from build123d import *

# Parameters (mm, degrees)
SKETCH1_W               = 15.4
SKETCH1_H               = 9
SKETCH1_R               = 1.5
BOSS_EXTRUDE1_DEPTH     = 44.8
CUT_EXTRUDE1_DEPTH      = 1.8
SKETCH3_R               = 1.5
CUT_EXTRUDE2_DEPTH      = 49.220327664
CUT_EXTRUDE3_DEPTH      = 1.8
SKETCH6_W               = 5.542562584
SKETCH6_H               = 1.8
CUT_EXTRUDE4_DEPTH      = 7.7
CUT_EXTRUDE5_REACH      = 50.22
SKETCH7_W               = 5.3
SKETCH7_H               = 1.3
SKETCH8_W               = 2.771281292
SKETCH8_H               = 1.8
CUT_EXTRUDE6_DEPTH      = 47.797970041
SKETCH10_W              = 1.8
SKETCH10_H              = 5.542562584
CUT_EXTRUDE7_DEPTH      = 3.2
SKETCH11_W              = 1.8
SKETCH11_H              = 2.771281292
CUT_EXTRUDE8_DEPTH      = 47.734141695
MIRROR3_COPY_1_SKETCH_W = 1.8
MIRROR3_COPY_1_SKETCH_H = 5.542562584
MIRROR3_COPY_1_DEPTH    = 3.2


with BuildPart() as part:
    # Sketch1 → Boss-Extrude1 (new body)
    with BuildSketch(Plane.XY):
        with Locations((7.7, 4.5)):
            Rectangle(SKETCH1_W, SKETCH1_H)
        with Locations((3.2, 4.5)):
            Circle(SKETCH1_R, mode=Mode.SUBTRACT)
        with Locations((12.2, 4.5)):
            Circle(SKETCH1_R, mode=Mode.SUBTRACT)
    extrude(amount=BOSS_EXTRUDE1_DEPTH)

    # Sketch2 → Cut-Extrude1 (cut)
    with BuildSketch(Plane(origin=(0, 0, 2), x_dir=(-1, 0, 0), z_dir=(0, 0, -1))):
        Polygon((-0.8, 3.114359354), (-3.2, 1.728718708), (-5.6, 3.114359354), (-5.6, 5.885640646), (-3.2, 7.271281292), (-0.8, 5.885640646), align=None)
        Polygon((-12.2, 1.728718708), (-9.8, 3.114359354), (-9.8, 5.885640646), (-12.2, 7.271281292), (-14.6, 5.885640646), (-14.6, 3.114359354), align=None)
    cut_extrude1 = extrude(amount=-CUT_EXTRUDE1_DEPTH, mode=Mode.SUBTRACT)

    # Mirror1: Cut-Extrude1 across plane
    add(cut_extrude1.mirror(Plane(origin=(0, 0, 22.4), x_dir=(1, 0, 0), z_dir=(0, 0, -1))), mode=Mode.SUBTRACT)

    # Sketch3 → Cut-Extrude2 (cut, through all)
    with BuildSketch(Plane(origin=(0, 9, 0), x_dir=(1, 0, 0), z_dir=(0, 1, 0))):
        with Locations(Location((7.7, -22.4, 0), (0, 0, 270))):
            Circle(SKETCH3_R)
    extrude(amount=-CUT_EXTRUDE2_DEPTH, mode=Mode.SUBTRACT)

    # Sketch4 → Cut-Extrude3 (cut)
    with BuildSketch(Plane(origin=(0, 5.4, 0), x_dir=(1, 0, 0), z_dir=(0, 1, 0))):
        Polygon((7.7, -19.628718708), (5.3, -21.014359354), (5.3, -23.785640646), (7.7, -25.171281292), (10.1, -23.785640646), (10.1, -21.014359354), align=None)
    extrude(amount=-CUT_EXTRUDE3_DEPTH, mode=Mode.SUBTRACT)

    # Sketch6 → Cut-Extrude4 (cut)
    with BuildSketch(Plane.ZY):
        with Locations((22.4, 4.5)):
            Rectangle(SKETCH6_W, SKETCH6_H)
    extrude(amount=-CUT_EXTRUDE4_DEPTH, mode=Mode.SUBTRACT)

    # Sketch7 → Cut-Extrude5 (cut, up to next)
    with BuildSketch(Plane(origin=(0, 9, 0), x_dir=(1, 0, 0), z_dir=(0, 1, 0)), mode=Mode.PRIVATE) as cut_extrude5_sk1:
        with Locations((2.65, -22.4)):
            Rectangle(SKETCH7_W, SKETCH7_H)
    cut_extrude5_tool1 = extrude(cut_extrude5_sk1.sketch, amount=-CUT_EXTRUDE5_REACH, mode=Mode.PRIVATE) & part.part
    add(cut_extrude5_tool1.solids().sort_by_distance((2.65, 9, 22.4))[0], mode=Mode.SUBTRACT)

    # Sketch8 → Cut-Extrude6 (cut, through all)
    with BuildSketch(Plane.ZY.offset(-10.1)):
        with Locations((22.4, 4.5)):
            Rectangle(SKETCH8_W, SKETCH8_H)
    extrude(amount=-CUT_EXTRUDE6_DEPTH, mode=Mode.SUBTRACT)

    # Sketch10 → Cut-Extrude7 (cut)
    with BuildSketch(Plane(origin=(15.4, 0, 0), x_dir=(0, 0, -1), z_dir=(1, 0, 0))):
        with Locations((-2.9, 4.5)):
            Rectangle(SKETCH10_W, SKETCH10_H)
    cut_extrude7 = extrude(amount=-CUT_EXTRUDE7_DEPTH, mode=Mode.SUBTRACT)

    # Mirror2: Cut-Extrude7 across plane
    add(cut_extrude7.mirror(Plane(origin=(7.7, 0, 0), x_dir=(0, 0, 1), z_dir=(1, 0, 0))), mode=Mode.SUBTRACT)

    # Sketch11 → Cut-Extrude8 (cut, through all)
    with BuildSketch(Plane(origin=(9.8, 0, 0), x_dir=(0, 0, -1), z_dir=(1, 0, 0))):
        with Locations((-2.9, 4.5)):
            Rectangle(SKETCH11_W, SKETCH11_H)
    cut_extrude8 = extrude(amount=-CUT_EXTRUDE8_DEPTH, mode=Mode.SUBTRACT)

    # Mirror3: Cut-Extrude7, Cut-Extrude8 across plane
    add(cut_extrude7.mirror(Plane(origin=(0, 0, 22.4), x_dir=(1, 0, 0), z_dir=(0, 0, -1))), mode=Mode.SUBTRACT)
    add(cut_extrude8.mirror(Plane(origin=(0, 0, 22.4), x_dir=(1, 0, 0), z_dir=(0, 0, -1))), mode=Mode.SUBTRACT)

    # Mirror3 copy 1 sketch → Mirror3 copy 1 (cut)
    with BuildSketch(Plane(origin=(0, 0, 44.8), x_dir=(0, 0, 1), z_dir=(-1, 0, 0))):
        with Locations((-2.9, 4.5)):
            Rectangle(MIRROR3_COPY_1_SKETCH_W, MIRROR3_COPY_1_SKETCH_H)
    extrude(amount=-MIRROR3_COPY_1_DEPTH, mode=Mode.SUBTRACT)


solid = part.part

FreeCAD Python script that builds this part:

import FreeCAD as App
import Part
import Sketcher
Q = App.Units.Quantity

doc = App.newDocument("Part")
body = doc.addObject("PartDesign::Body", "Body")

# Sketch on XY plane
sketch1 = doc.addObject("Sketcher::SketchObject", "Sketch")
body.addObject(sketch1)
sketch1.AttachmentSupport = (doc.XY_Plane, [""])
sketch1.MapMode = "FlatFace"
sketch1.addGeometry([
    Part.LineSegment(App.Vector(0, 9, 0), App.Vector(0, 0, 0)),  # 0
    Part.LineSegment(App.Vector(0, 0, 0), App.Vector(15.4, 0, 0)),  # 1
    Part.LineSegment(App.Vector(15.4, 0, 0), App.Vector(15.4, 9, 0)),  # 2
    Part.LineSegment(App.Vector(15.4, 9, 0), App.Vector(0, 9, 0)),  # 3
    Part.Circle(App.Vector(3.2, 4.5, 0), App.Vector(0, 0, 1), 1.5),  # 4
    Part.Circle(App.Vector(12.2, 4.5, 0), App.Vector(0, 0, 1), 1.5),  # 5
], False)
sketch1.addConstraint([
    Sketcher.Constraint("Coincident", 0, 2, 1, 1),
    Sketcher.Constraint("Coincident", 1, 2, 2, 1),
    Sketcher.Constraint("Coincident", 2, 2, 3, 1),
    Sketcher.Constraint("Coincident", 3, 2, 0, 1),
    Sketcher.Constraint("Vertical", 0),
    Sketcher.Constraint("Horizontal", 1),
    Sketcher.Constraint("Vertical", 2),
    Sketcher.Constraint("Horizontal", 3),
    Sketcher.Constraint("Coincident", 0, 2, -1, 1),
    Sketcher.Constraint("Equal", 4, 5),
    Sketcher.Constraint("Horizontal", 4, 3, 5, 3),
    Sketcher.Constraint("Diameter", 4, Q("3 mm")),
    Sketcher.Constraint("DistanceY", 0, 2, 0, 1, Q("9 mm")),
    Sketcher.Constraint("DistanceX", 1, 1, 1, 2, Q("15.4 mm")),
    Sketcher.Constraint("DistanceX", 4, 3, 5, 3, Q("9 mm")),
    Sketcher.Constraint("DistanceX", -1, 1, 4, 3, Q("3.2 mm")),
    Sketcher.Constraint("DistanceY", -1, 1, 4, 3, Q("4.5 mm")),
])
pad1 = doc.addObject("PartDesign::Pad", "Pad")
body.addObject(pad1)
pad1.Profile = sketch1
pad1.Length = 44.8

# Sketch on XY plane
sketch2 = doc.addObject("Sketcher::SketchObject", "Sketch001")
body.addObject(sketch2)
sketch2.AttachmentSupport = (doc.XY_Plane, [""])
sketch2.MapMode = "FlatFace"
sketch2.AttachmentOffset = App.Placement(App.Vector(0, 0, 2), App.Rotation())
sketch2.addGeometry([
    Part.LineSegment(App.Vector(3.2, 1.7, 0), App.Vector(0.8, 3.1, 0)),  # 0
    Part.LineSegment(App.Vector(0.8, 3.1, 0), App.Vector(0.8, 5.9, 0)),  # 1
    Part.LineSegment(App.Vector(0.8, 5.9, 0), App.Vector(3.2, 7.3, 0)),  # 2
    Part.LineSegment(App.Vector(3.2, 7.3, 0), App.Vector(5.6, 5.9, 0)),  # 3
    Part.LineSegment(App.Vector(5.6, 5.9, 0), App.Vector(5.6, 3.1, 0)),  # 4
    Part.LineSegment(App.Vector(5.6, 3.1, 0), App.Vector(3.2, 1.7, 0)),  # 5
    Part.LineSegment(App.Vector(12.2, 1.7, 0), App.Vector(9.8, 3.1, 0)),  # 6
    Part.LineSegment(App.Vector(9.8, 3.1, 0), App.Vector(9.8, 5.9, 0)),  # 7
    Part.LineSegment(App.Vector(9.8, 5.9, 0), App.Vector(12.2, 7.3, 0)),  # 8
    Part.LineSegment(App.Vector(12.2, 7.3, 0), App.Vector(14.6, 5.9, 0)),  # 9
    Part.LineSegment(App.Vector(14.6, 5.9, 0), App.Vector(14.6, 3.1, 0)),  # 10
    Part.LineSegment(App.Vector(14.6, 3.1, 0), App.Vector(12.2, 1.7, 0)),  # 11
], False)
sketch2.addConstraint([
    Sketcher.Constraint("Coincident", 0, 2, 1, 1),
    Sketcher.Constraint("Coincident", 1, 2, 2, 1),
    Sketcher.Constraint("Coincident", 2, 2, 3, 1),
    Sketcher.Constraint("Coincident", 3, 2, 4, 1),
    Sketcher.Constraint("Coincident", 4, 2, 5, 1),
    Sketcher.Constraint("Coincident", 5, 2, 0, 1),
    Sketcher.Constraint("Coincident", 6, 2, 7, 1),
    Sketcher.Constraint("Coincident", 7, 2, 8, 1),
    Sketcher.Constraint("Coincident", 8, 2, 9, 1),
    Sketcher.Constraint("Coincident", 9, 2, 10, 1),
    Sketcher.Constraint("Coincident", 10, 2, 11, 1),
    Sketcher.Constraint("Coincident", 11, 2, 6, 1),
    Sketcher.Constraint("Vertical", 1),
    Sketcher.Constraint("Vertical", 4),
    Sketcher.Constraint("Vertical", 7),
    Sketcher.Constraint("Vertical", 10),
    Sketcher.Constraint("Parallel", 0, 3),
    Sketcher.Constraint("Parallel", 2, 5),
    Sketcher.Constraint("Parallel", 3, 6),
    Sketcher.Constraint("Parallel", 5, 8),
    Sketcher.Constraint("Parallel", 6, 9),
    Sketcher.Constraint("Parallel", 8, 11),
    Sketcher.Constraint("Horizontal", 1, 2, 3, 2),
    Sketcher.Constraint("Horizontal", 0, 2, 4, 2),
    Sketcher.Constraint("Horizontal", 4, 2, 6, 2),
    Sketcher.Constraint("Horizontal", 3, 2, 7, 2),
    Sketcher.Constraint("Horizontal", 2, 2, 8, 2),
    Sketcher.Constraint("Horizontal", 7, 2, 9, 2),
    Sketcher.Constraint("Horizontal", 6, 2, 10, 2),
    Sketcher.Constraint("Vertical", 2, 2, 5, 2),
    Sketcher.Constraint("Angle", 0, Q("150 deg")),
    Sketcher.Constraint("DistanceX", 0, 2, 6, 2, Q("9 mm")),
    Sketcher.Constraint("DistanceX", -1, 1, 0, 2, Q("0.8 mm")),
    Sketcher.Constraint("DistanceX", -1, 1, 2, 2, Q("3.2 mm")),
    Sketcher.Constraint("DistanceY", 1, 1, 1, 2, Q("2.771281 mm")),
    Sketcher.Constraint("DistanceY", -1, 1, 0, 2, Q("3.114359 mm")),
])
pocket1 = doc.addObject("PartDesign::Pocket", "Pocket")
body.addObject(pocket1)
pocket1.Profile = sketch2
pocket1.Length = 1.8
pocket1.Reversed = True
doc.recompute()

datumplane = doc.addObject("PartDesign::Plane", "DatumPlane")
body.addObject(datumplane)
datumplane.AttachmentSupport = (doc.XY_Plane, [""])
datumplane.MapMode = "FlatFace"
datumplane.AttachmentOffset = App.Placement(App.Vector(0, 0, 22.4), App.Rotation())
mirrored = doc.addObject("PartDesign::Mirrored", "Mirrored")
body.addObject(mirrored)
mirrored.Originals = [pocket1]
mirrored.MirrorPlane = (datumplane, [""])
body.Tip = mirrored

# Sketch on XZ plane
sketch3 = doc.addObject("Sketcher::SketchObject", "Sketch002")
body.addObject(sketch3)
sketch3.AttachmentSupport = (doc.XZ_Plane, [""])
sketch3.MapMode = "FlatFace"
sketch3.AttachmentOffset = App.Placement(App.Vector(0, 0, -9), App.Rotation())
sketch3.addGeometry(Part.Circle(App.Vector(7.7, 22.4, 0), App.Vector(0, 0, 1), 1.5), False)
sketch3.addConstraint([
    Sketcher.Constraint("Diameter", 0, Q("3 mm")),
    Sketcher.Constraint("DistanceX", -1, 1, 0, 3, Q("7.7 mm")),
    Sketcher.Constraint("DistanceY", -1, 1, 0, 3, Q("22.4 mm")),
])
pocket2 = doc.addObject("PartDesign::Pocket", "Pocket001")
body.addObject(pocket2)
pocket2.Profile = sketch3
pocket2.Type = "ThroughAll"
pocket2.Reversed = True

# Sketch on XZ plane
sketch4 = doc.addObject("Sketcher::SketchObject", "Sketch003")
body.addObject(sketch4)
sketch4.AttachmentSupport = (doc.XZ_Plane, [""])
sketch4.MapMode = "FlatFace"
sketch4.AttachmentOffset = App.Placement(App.Vector(0, 0, -5.4), App.Rotation())
sketch4.addGeometry([
    Part.LineSegment(App.Vector(7.7, 19.6, 0), App.Vector(5.3, 21, 0)),  # 0
    Part.LineSegment(App.Vector(5.3, 21, 0), App.Vector(5.3, 23.8, 0)),  # 1
    Part.LineSegment(App.Vector(5.3, 23.8, 0), App.Vector(7.7, 25.2, 0)),  # 2
    Part.LineSegment(App.Vector(7.7, 25.2, 0), App.Vector(10.1, 23.8, 0)),  # 3
    Part.LineSegment(App.Vector(10.1, 23.8, 0), App.Vector(10.1, 21, 0)),  # 4
    Part.LineSegment(App.Vector(10.1, 21, 0), App.Vector(7.7, 19.6, 0)),  # 5
], False)
sketch4.addConstraint([
    Sketcher.Constraint("Coincident", 0, 2, 1, 1),
    Sketcher.Constraint("Coincident", 1, 2, 2, 1),
    Sketcher.Constraint("Coincident", 2, 2, 3, 1),
    Sketcher.Constraint("Coincident", 3, 2, 4, 1),
    Sketcher.Constraint("Coincident", 4, 2, 5, 1),
    Sketcher.Constraint("Coincident", 5, 2, 0, 1),
    Sketcher.Constraint("Vertical", 1),
    Sketcher.Constraint("Vertical", 4),
    Sketcher.Constraint("Parallel", 0, 3),
    Sketcher.Constraint("Parallel", 2, 5),
    Sketcher.Constraint("Horizontal", 1, 2, 3, 2),
    Sketcher.Constraint("Horizontal", 0, 2, 4, 2),
    Sketcher.Constraint("Vertical", 2, 2, 5, 2),
    Sketcher.Constraint("Angle", 0, Q("150 deg")),
    Sketcher.Constraint("DistanceX", -1, 1, 0, 2, Q("5.3 mm")),
    Sketcher.Constraint("DistanceX", -1, 1, 2, 2, Q("7.7 mm")),
    Sketcher.Constraint("DistanceY", 1, 1, 1, 2, Q("2.771281 mm")),
    Sketcher.Constraint("DistanceY", -1, 1, 0, 2, Q("21.014359 mm")),
])
pocket3 = doc.addObject("PartDesign::Pocket", "Pocket002")
body.addObject(pocket3)
pocket3.Profile = sketch4
pocket3.Length = 1.8
pocket3.Reversed = True

# Sketch on YZ plane
sketch5 = doc.addObject("Sketcher::SketchObject", "Sketch004")
body.addObject(sketch5)
sketch5.AttachmentSupport = (doc.YZ_Plane, [""])
sketch5.MapMode = "FlatFace"
sketch5.addGeometry([
    Part.LineSegment(App.Vector(5.4, 19.6, 0), App.Vector(3.6, 19.6, 0)),
    Part.LineSegment(App.Vector(3.6, 19.6, 0), App.Vector(3.6, 25.2, 0)),
    Part.LineSegment(App.Vector(3.6, 25.2, 0), App.Vector(5.4, 25.2, 0)),
    Part.LineSegment(App.Vector(5.4, 25.2, 0), App.Vector(5.4, 19.6, 0)),
], False)
sketch5.addConstraint([
    Sketcher.Constraint("Coincident", 0, 2, 1, 1),
    Sketcher.Constraint("Coincident", 1, 2, 2, 1),
    Sketcher.Constraint("Coincident", 2, 2, 3, 1),
    Sketcher.Constraint("Coincident", 3, 2, 0, 1),
    Sketcher.Constraint("Horizontal", 0),
    Sketcher.Constraint("Vertical", 1),
    Sketcher.Constraint("Horizontal", 2),
    Sketcher.Constraint("Vertical", 3),
    Sketcher.Constraint("DistanceX", 0, 2, 0, 1, Q("1.8 mm")),
    Sketcher.Constraint("DistanceX", -1, 1, 0, 2, Q("3.6 mm")),
    Sketcher.Constraint("DistanceY", 1, 1, 1, 2, Q("5.542563 mm")),
    Sketcher.Constraint("DistanceY", -1, 1, 0, 2, Q("19.628719 mm")),
])
pocket4 = doc.addObject("PartDesign::Pocket", "Pocket003")
body.addObject(pocket4)
pocket4.Profile = sketch5
pocket4.Length = 7.7
pocket4.Reversed = True

# Sketch on XZ plane
sketch6 = doc.addObject("Sketcher::SketchObject", "Sketch005")
body.addObject(sketch6)
sketch6.AttachmentSupport = (doc.XZ_Plane, [""])
sketch6.MapMode = "FlatFace"
sketch6.AttachmentOffset = App.Placement(App.Vector(0, 0, -9), App.Rotation())
sketch6.addGeometry([
    Part.LineSegment(App.Vector(0, 21.8, 0), App.Vector(0, 23.1, 0)),
    Part.LineSegment(App.Vector(0, 23.1, 0), App.Vector(5.3, 23.1, 0)),
    Part.LineSegment(App.Vector(5.3, 23.1, 0), App.Vector(5.3, 21.8, 0)),
    Part.LineSegment(App.Vector(5.3, 21.8, 0), App.Vector(0, 21.8, 0)),
], False)
sketch6.addConstraint([
    Sketcher.Constraint("Coincident", 0, 2, 1, 1),
    Sketcher.Constraint("Coincident", 1, 2, 2, 1),
    Sketcher.Constraint("Coincident", 2, 2, 3, 1),
    Sketcher.Constraint("Coincident", 3, 2, 0, 1),
    Sketcher.Constraint("Vertical", 0),
    Sketcher.Constraint("Horizontal", 1),
    Sketcher.Constraint("Vertical", 2),
    Sketcher.Constraint("Horizontal", 3),
    Sketcher.Constraint("PointOnObject", 0, 2, -2),
    Sketcher.Constraint("DistanceX", 1, 1, 1, 2, Q("5.3 mm")),
    Sketcher.Constraint("DistanceY", 0, 1, 0, 2, Q("1.3 mm")),
    Sketcher.Constraint("DistanceY", -1, 1, 0, 2, Q("23.05 mm")),
])
pocket5 = doc.addObject("PartDesign::Pocket", "Pocket004")
body.addObject(pocket5)
pocket5.Profile = sketch6
pocket5.Length = 3.6
pocket5.Reversed = True

# Sketch on YZ plane
sketch7 = doc.addObject("Sketcher::SketchObject", "Sketch006")
body.addObject(sketch7)
sketch7.AttachmentSupport = (doc.YZ_Plane, [""])
sketch7.MapMode = "FlatFace"
sketch7.AttachmentOffset = App.Placement(App.Vector(0, 0, 10.1), App.Rotation())
sketch7.addGeometry([
    Part.LineSegment(App.Vector(5.4, 21, 0), App.Vector(3.6, 21, 0)),
    Part.LineSegment(App.Vector(3.6, 21, 0), App.Vector(3.6, 23.8, 0)),
    Part.LineSegment(App.Vector(3.6, 23.8, 0), App.Vector(5.4, 23.8, 0)),
    Part.LineSegment(App.Vector(5.4, 23.8, 0), App.Vector(5.4, 21, 0)),
], False)
sketch7.addConstraint([
    Sketcher.Constraint("Coincident", 0, 2, 1, 1),
    Sketcher.Constraint("Coincident", 1, 2, 2, 1),
    Sketcher.Constraint("Coincident", 2, 2, 3, 1),
    Sketcher.Constraint("Coincident", 3, 2, 0, 1),
    Sketcher.Constraint("Horizontal", 0),
    Sketcher.Constraint("Vertical", 1),
    Sketcher.Constraint("Horizontal", 2),
    Sketcher.Constraint("Vertical", 3),
    Sketcher.Constraint("DistanceX", 0, 2, 0, 1, Q("1.8 mm")),
    Sketcher.Constraint("DistanceX", -1, 1, 0, 2, Q("3.6 mm")),
    Sketcher.Constraint("DistanceY", 1, 1, 1, 2, Q("2.771281 mm")),
    Sketcher.Constraint("DistanceY", -1, 1, 0, 2, Q("21.014359 mm")),
])
pocket6 = doc.addObject("PartDesign::Pocket", "Pocket005")
body.addObject(pocket6)
pocket6.Profile = sketch7
pocket6.Type = "ThroughAll"
pocket6.Reversed = True

# Sketch on YZ plane
sketch8 = doc.addObject("Sketcher::SketchObject", "Sketch007")
body.addObject(sketch8)
sketch8.AttachmentSupport = (doc.YZ_Plane, [""])
sketch8.MapMode = "FlatFace"
sketch8.AttachmentOffset = App.Placement(App.Vector(0, 0, 15.4), App.Rotation())
sketch8.addGeometry([
    Part.LineSegment(App.Vector(7.3, 3.8, 0), App.Vector(1.7, 3.8, 0)),
    Part.LineSegment(App.Vector(1.7, 3.8, 0), App.Vector(1.7, 2, 0)),
    Part.LineSegment(App.Vector(1.7, 2, 0), App.Vector(7.3, 2, 0)),
    Part.LineSegment(App.Vector(7.3, 2, 0), App.Vector(7.3, 3.8, 0)),
], False)
sketch8.addConstraint([
    Sketcher.Constraint("Coincident", 0, 2, 1, 1),
    Sketcher.Constraint("Coincident", 1, 2, 2, 1),
    Sketcher.Constraint("Coincident", 2, 2, 3, 1),
    Sketcher.Constraint("Coincident", 3, 2, 0, 1),
    Sketcher.Constraint("Horizontal", 0),
    Sketcher.Constraint("Vertical", 1),
    Sketcher.Constraint("Horizontal", 2),
    Sketcher.Constraint("Vertical", 3),
    Sketcher.Constraint("DistanceY", 1, 2, 1, 1, Q("1.8 mm")),
    Sketcher.Constraint("DistanceY", -1, 1, 1, 2, Q("2 mm")),
    Sketcher.Constraint("DistanceX", 0, 2, 0, 1, Q("5.542563 mm")),
    Sketcher.Constraint("DistanceX", -1, 1, 0, 2, Q("1.728719 mm")),
])
pocket7 = doc.addObject("PartDesign::Pocket", "Pocket006")
body.addObject(pocket7)
pocket7.Profile = sketch8
pocket7.Length = 3.2
doc.recompute()

datumplane2 = doc.addObject("PartDesign::Plane", "DatumPlane001")
body.addObject(datumplane2)
datumplane2.AttachmentSupport = (doc.YZ_Plane, [""])
datumplane2.MapMode = "FlatFace"
datumplane2.AttachmentOffset = App.Placement(App.Vector(0, 0, 7.7), App.Rotation())
mirrored2 = doc.addObject("PartDesign::Mirrored", "Mirrored001")
body.addObject(mirrored2)
mirrored2.Originals = [pocket7]
mirrored2.MirrorPlane = (datumplane2, [""])
body.Tip = mirrored2

# Sketch on YZ plane
sketch9 = doc.addObject("Sketcher::SketchObject", "Sketch008")
body.addObject(sketch9)
sketch9.AttachmentSupport = (doc.YZ_Plane, [""])
sketch9.MapMode = "FlatFace"
sketch9.AttachmentOffset = App.Placement(App.Vector(0, 0, 9.8), App.Rotation())
sketch9.addGeometry([
    Part.LineSegment(App.Vector(5.9, 3.8, 0), App.Vector(3.1, 3.8, 0)),
    Part.LineSegment(App.Vector(3.1, 3.8, 0), App.Vector(3.1, 2, 0)),
    Part.LineSegment(App.Vector(3.1, 2, 0), App.Vector(5.9, 2, 0)),
    Part.LineSegment(App.Vector(5.9, 2, 0), App.Vector(5.9, 3.8, 0)),
], False)
sketch9.addConstraint([
    Sketcher.Constraint("Coincident", 0, 2, 1, 1),
    Sketcher.Constraint("Coincident", 1, 2, 2, 1),
    Sketcher.Constraint("Coincident", 2, 2, 3, 1),
    Sketcher.Constraint("Coincident", 3, 2, 0, 1),
    Sketcher.Constraint("Horizontal", 0),
    Sketcher.Constraint("Vertical", 1),
    Sketcher.Constraint("Horizontal", 2),
    Sketcher.Constraint("Vertical", 3),
    Sketcher.Constraint("DistanceY", 1, 2, 1, 1, Q("1.8 mm")),
    Sketcher.Constraint("DistanceY", -1, 1, 1, 2, Q("2 mm")),
    Sketcher.Constraint("DistanceX", 0, 2, 0, 1, Q("2.771281 mm")),
    Sketcher.Constraint("DistanceX", -1, 1, 0, 2, Q("3.114359 mm")),
])
pocket8 = doc.addObject("PartDesign::Pocket", "Pocket007")
body.addObject(pocket8)
pocket8.Profile = sketch9
pocket8.Type = "ThroughAll"
doc.recompute()

datumplane3 = doc.addObject("PartDesign::Plane", "DatumPlane002")
body.addObject(datumplane3)
datumplane3.AttachmentSupport = (doc.XY_Plane, [""])
datumplane3.MapMode = "FlatFace"
datumplane3.AttachmentOffset = App.Placement(App.Vector(0, 0, 22.4), App.Rotation())
mirrored3 = doc.addObject("PartDesign::Mirrored", "Mirrored002")
body.addObject(mirrored3)
mirrored3.Originals = [pocket7, pocket8]
mirrored3.MirrorPlane = (datumplane3, [""])
body.Tip = mirrored3

# Sketch on YZ plane
sketch10 = doc.addObject("Sketcher::SketchObject", "Sketch009")
body.addObject(sketch10)
sketch10.AttachmentSupport = (doc.YZ_Plane, [""])
sketch10.MapMode = "FlatFace"
sketch10.addGeometry([
    Part.LineSegment(App.Vector(7.3, 41, 0), App.Vector(1.7, 41, 0)),
    Part.LineSegment(App.Vector(1.7, 41, 0), App.Vector(1.7, 42.8, 0)),
    Part.LineSegment(App.Vector(1.7, 42.8, 0), App.Vector(7.3, 42.8, 0)),
    Part.LineSegment(App.Vector(7.3, 42.8, 0), App.Vector(7.3, 41, 0)),
], False)
sketch10.addConstraint([
    Sketcher.Constraint("Coincident", 0, 2, 1, 1),
    Sketcher.Constraint("Coincident", 1, 2, 2, 1),
    Sketcher.Constraint("Coincident", 2, 2, 3, 1),
    Sketcher.Constraint("Coincident", 3, 2, 0, 1),
    Sketcher.Constraint("Horizontal", 0),
    Sketcher.Constraint("Vertical", 1),
    Sketcher.Constraint("Horizontal", 2),
    Sketcher.Constraint("Vertical", 3),
    Sketcher.Constraint("DistanceY", 1, 1, 1, 2, Q("1.8 mm")),
    Sketcher.Constraint("DistanceY", -1, 1, 0, 2, Q("41 mm")),
    Sketcher.Constraint("DistanceX", 0, 2, 0, 1, Q("5.542563 mm")),
    Sketcher.Constraint("DistanceX", -1, 1, 0, 2, Q("1.728719 mm")),
])
pocket9 = doc.addObject("PartDesign::Pocket", "Pocket008")
body.addObject(pocket9)
pocket9.Profile = sketch10
pocket9.Length = 3.2
pocket9.Reversed = True

doc.recompute()
